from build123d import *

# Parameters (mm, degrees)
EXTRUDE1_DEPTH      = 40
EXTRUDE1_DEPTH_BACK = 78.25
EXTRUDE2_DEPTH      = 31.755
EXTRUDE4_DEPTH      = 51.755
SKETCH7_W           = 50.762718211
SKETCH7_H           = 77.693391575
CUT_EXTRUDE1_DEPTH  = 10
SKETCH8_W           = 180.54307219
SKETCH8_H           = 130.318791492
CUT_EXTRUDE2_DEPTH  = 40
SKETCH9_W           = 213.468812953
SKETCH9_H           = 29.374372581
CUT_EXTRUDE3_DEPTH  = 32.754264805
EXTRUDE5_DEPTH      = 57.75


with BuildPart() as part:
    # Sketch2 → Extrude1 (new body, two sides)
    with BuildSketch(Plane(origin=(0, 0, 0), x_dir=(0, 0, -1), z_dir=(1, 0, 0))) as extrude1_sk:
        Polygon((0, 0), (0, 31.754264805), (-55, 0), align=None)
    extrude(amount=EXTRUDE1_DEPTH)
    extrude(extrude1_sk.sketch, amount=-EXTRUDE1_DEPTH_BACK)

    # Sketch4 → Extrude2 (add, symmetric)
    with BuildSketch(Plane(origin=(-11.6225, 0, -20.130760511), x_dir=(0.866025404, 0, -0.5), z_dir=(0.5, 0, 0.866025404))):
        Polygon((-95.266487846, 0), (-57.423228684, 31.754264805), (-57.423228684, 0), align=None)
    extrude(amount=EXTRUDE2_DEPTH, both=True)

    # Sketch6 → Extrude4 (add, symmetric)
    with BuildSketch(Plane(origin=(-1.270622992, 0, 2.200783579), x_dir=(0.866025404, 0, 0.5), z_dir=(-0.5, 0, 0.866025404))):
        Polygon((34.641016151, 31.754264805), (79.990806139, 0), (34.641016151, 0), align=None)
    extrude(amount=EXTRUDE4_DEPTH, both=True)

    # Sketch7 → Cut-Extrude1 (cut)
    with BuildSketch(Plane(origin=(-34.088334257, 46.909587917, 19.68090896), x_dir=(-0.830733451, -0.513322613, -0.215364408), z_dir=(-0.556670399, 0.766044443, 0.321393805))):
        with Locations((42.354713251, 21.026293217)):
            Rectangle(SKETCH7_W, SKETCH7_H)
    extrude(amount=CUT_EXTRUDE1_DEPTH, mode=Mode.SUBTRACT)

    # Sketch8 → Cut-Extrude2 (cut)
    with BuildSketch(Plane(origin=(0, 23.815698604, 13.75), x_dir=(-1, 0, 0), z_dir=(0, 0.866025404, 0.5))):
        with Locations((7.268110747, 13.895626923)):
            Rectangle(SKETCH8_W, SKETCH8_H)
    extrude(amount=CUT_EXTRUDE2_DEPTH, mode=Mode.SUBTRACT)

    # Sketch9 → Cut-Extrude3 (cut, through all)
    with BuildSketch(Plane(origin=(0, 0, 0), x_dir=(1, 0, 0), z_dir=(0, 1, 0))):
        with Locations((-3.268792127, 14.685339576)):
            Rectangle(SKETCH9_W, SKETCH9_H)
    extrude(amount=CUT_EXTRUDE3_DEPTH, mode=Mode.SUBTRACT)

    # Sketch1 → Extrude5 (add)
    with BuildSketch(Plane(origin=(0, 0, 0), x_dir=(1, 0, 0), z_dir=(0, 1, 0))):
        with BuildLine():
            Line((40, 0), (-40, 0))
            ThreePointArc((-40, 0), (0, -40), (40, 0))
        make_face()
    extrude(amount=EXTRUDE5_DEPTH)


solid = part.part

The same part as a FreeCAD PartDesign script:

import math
import FreeCAD as App
import Part
import Sketcher

V = App.Vector
Q = App.Units.Quantity


def add_polygon(sketch, points):
    """Adds a closed chain of lines whose ends are joined by coincident constraints."""
    first, n = sketch.GeometryCount, len(points)
    for a, b in zip(points, points[1:] + points[:1]):
        sketch.addGeometry(Part.LineSegment(App.Vector(*a, 0), App.Vector(*b, 0)), False)
    for i in range(n):
        sketch.addConstraint(Sketcher.Constraint("Coincident", first + i, 2, first + (i + 1) % n, 1))

doc = App.newDocument("Part")
params = doc.addObject("Spreadsheet::Sheet", "Params")
for row, (alias, value) in enumerate([
    ("sketch1_height", "55 mm"),
    ("pad1_length", "40 mm"),
    ("pad1_length2", "78.25 mm"),
    ("pad2_length", "63.51 mm"),
    ("pad3_length", "103.51 mm"),
    ("pocket1_length", "10 mm"),
    ("pocket2_length", "40 mm"),
    ("sketch7_radius", "40 mm"),
    ("pad4_length", "57.75 mm"),
], start=1):
    params.set(f"A{row}", alias)
    params.set(f"B{row}", "=" + value)
    params.setAlias(f"B{row}", alias)

body = doc.addObject("PartDesign::Body", "Body")

sketch1 = body.newObject("Sketcher::SketchObject", "Sketch")
sketch1.AttachmentSupport = (doc.getObject("YZ_Plane"), [""])
sketch1.MapMode = "FlatFace"
add_polygon(sketch1, [(0, 0), (32, 0), (0, 55)])
sketch1.addConstraint([
    Sketcher.Constraint("Horizontal", 0),
    Sketcher.Constraint("Vertical", 2),
    Sketcher.Constraint("Coincident", 2, 2, -1, 1),
    Sketcher.Constraint("DistanceY", 2, 2, 2, 1, 55.0),
    Sketcher.Constraint("Angle", 1, Q("120 deg")),
])
sketch1.setExpression("Constraints[6]", "Params.sketch1_height")
pad1 = body.newObject("PartDesign::Pad", "Pad")
pad1.Profile = sketch1
pad1.Type = "TwoLengths"
pad1.setExpression("Length", "Params.pad1_length")
pad1.setExpression("Length2", "Params.pad1_length2")

sketch2 = body.newObject("Sketcher::SketchObject", "Sketch001")
sketch2.Placement = App.Placement(V(-11.6225, 0, -20.130761), App.Rotation(V(0.866025404, 0, -0.5), V(0, 1, 0), V(0.5, 0, 0.866025404), "ZXY"))
add_polygon(sketch2, [(-57, 32), (-95, 0), (-57, 0)])
sketch2.addConstraint([
    Sketcher.Constraint("Horizontal", 1),
    Sketcher.Constraint("Vertical", 2),
    Sketcher.Constraint("PointOnObject", 0, 2, -1),
    Sketcher.Constraint("Angle", 0, Q("-140 deg")),
    Sketcher.Constraint("DistanceX", 1, 1, 1, 2, 37.843259),
    Sketcher.Constraint("DistanceX", 1, 2, -1, 1, 57.423229),
])
pad2 = body.newObject("PartDesign::Pad", "Pad001")
pad2.Profile = sketch2
pad2.setExpression("Length", "Params.pad2_length")
pad2.Midplane = True

sketch3 = body.newObject("Sketcher::SketchObject", "Sketch002")
sketch3.Placement = App.Placement(V(-1.270623, 0, 2.200784), App.Rotation(V(0.866025404, 0, 0.5), V(0, 1, 0), V(-0.5, 0, 0.866025404), "ZXY"))
add_polygon(sketch3, [(80, 0), (35, 32), (35, 0)])
sketch3.addConstraint([
    Sketcher.Constraint("Vertical", 1),
    Sketcher.Constraint("Horizontal", 2),
    Sketcher.Constraint("PointOnObject", 1, 2, -1),
    Sketcher.Constraint("Angle", 0, Q("145 deg")),
    Sketcher.Constraint("DistanceX", 2, 1, 2, 2, 45.34979),
    Sketcher.Constraint("DistanceX", -1, 1, 0, 2, 34.641016),
])
pad3 = body.newObject("PartDesign::Pad", "Pad002")
pad3.Profile = sketch3
pad3.setExpression("Length", "Params.pad3_length")
pad3.Midplane = True

sketch4 = body.newObject("Sketcher::SketchObject", "Sketch003")
sketch4.Placement = App.Placement(V(-34.088334, 46.909588, 19.680909), App.Rotation(V(-0.830733451, -0.513322613, -0.215364408), V(0, -0.386879576, 0.922130248), V(-0.556670399, 0.766044443, 0.321393805), "ZXY"))
add_polygon(sketch4, [(17, 60), (17, -18), (68, -18), (68, 60)])
sketch4.addConstraint([
    Sketcher.Constraint("Vertical", 0),
    Sketcher.Constraint("Horizontal", 1),
    Sketcher.Constraint("Vertical", 2),
    Sketcher.Constraint("Horizontal", 3),
    Sketcher.Constraint("DistanceX", 1, 1, 1, 2, 50.762718),
    Sketcher.Constraint("DistanceY", 0, 2, 0, 1, 77.693392),
    Sketcher.Constraint("DistanceY", -1, 1, 2, 2, 59.872989),
    Sketcher.Constraint("DistanceX", -1, 1, 0, 2, 16.973354),
])
pocket1 = body.newObject("PartDesign::Pocket", "Pocket")
pocket1.Profile = sketch4
pocket1.setExpression("Length", "Params.pocket1_length")
pocket1.Reversed = True

sketch5 = body.newObject("Sketcher::SketchObject", "Sketch004")
sketch5.Placement = App.Placement(V(0, 23.815699, 13.75), App.Rotation(V(-1, 0, 0), V(0, -0.5, 0.866025404), V(0, 0.866025404, 0.5), "ZXY"))
add_polygon(sketch5, [(-83, 79), (-83, -51), (98, -51), (98, 79)])
sketch5.addConstraint([
    Sketcher.Constraint("Vertical", 0),
    Sketcher.Constraint("Horizontal", 1),
    Sketcher.Constraint("Vertical", 2),
    Sketcher.Constraint("Horizontal", 3),
    Sketcher.Constraint("DistanceY", 0, 2, 0, 1, 130.318792),
    Sketcher.Constraint("DistanceX", 1, 1, 1, 2, 180.543072),
    Sketcher.Constraint("DistanceY", 0, 2, -1, 1, 51.263769),
    Sketcher.Constraint("DistanceX", 0, 2, -1, 1, 83.003425),
])
pocket2 = body.newObject("PartDesign::Pocket", "Pocket001")
pocket2.Profile = sketch5
pocket2.setExpression("Length", "Params.pocket2_length")
pocket2.Reversed = True

sketch6 = body.newObject("Sketcher::SketchObject", "Sketch005")
sketch6.AttachmentSupport = (doc.getObject("XZ_Plane"), [""])
sketch6.MapMode = "FlatFace"
add_polygon(sketch6, [(-110, -29), (-110, 0), (103, 0), (103, -29)])
sketch6.addConstraint([
    Sketcher.Constraint("Vertical", 0),
    Sketcher.Constraint("Horizontal", 1),
    Sketcher.Constraint("Vertical", 2),
    Sketcher.Constraint("Horizontal", 3),
    Sketcher.Constraint("DistanceX", 0, 2, -1, 1, 110.003199),
    Sketcher.Constraint("DistanceX", 1, 1, 1, 2, 213.468813),
    Sketcher.Constraint("DistanceY", 0, 1, 0, 2, 29.374373),
    Sketcher.Constraint("DistanceY", -1, 1, 0, 2, 0.001847),
])
pocket3 = body.newObject("PartDesign::Pocket", "Pocket002")
pocket3.Profile = sketch6
pocket3.Type = "ThroughAll"

sketch7 = body.newObject("Sketcher::SketchObject", "Sketch006")
sketch7.AttachmentSupport = (doc.getObject("XZ_Plane"), [""])
sketch7.MapMode = "FlatFace"
sketch7.addGeometry([
    Part.LineSegment(V(40, 0, 0), V(-40, 0, 0)),
    Part.ArcOfCircle(Part.Circle(V(0, 0, 0), V(0, 0, 1), 40), math.radians(0), math.radians(180)),
], False)
sketch7.addConstraint([
    Sketcher.Constraint("Coincident", 0, 1, 1, 1),
    Sketcher.Constraint("Coincident", 1, 2, 0, 2),
    Sketcher.Constraint("Horizontal", 0),
    Sketcher.Constraint("Coincident", 1, 3, -1, 1),
    Sketcher.Constraint("PointOnObject", 0, 1, -1),
    Sketcher.Constraint("Radius", 1, 40.0),
])
sketch7.setExpression("Constraints[5]", "Params.sketch7_radius")
pad4 = body.newObject("PartDesign::Pad", "Pad003")
pad4.Profile = sketch7
pad4.setExpression("Length", "Params.pad4_length")
pad4.Reversed = True

doc.recompute()
